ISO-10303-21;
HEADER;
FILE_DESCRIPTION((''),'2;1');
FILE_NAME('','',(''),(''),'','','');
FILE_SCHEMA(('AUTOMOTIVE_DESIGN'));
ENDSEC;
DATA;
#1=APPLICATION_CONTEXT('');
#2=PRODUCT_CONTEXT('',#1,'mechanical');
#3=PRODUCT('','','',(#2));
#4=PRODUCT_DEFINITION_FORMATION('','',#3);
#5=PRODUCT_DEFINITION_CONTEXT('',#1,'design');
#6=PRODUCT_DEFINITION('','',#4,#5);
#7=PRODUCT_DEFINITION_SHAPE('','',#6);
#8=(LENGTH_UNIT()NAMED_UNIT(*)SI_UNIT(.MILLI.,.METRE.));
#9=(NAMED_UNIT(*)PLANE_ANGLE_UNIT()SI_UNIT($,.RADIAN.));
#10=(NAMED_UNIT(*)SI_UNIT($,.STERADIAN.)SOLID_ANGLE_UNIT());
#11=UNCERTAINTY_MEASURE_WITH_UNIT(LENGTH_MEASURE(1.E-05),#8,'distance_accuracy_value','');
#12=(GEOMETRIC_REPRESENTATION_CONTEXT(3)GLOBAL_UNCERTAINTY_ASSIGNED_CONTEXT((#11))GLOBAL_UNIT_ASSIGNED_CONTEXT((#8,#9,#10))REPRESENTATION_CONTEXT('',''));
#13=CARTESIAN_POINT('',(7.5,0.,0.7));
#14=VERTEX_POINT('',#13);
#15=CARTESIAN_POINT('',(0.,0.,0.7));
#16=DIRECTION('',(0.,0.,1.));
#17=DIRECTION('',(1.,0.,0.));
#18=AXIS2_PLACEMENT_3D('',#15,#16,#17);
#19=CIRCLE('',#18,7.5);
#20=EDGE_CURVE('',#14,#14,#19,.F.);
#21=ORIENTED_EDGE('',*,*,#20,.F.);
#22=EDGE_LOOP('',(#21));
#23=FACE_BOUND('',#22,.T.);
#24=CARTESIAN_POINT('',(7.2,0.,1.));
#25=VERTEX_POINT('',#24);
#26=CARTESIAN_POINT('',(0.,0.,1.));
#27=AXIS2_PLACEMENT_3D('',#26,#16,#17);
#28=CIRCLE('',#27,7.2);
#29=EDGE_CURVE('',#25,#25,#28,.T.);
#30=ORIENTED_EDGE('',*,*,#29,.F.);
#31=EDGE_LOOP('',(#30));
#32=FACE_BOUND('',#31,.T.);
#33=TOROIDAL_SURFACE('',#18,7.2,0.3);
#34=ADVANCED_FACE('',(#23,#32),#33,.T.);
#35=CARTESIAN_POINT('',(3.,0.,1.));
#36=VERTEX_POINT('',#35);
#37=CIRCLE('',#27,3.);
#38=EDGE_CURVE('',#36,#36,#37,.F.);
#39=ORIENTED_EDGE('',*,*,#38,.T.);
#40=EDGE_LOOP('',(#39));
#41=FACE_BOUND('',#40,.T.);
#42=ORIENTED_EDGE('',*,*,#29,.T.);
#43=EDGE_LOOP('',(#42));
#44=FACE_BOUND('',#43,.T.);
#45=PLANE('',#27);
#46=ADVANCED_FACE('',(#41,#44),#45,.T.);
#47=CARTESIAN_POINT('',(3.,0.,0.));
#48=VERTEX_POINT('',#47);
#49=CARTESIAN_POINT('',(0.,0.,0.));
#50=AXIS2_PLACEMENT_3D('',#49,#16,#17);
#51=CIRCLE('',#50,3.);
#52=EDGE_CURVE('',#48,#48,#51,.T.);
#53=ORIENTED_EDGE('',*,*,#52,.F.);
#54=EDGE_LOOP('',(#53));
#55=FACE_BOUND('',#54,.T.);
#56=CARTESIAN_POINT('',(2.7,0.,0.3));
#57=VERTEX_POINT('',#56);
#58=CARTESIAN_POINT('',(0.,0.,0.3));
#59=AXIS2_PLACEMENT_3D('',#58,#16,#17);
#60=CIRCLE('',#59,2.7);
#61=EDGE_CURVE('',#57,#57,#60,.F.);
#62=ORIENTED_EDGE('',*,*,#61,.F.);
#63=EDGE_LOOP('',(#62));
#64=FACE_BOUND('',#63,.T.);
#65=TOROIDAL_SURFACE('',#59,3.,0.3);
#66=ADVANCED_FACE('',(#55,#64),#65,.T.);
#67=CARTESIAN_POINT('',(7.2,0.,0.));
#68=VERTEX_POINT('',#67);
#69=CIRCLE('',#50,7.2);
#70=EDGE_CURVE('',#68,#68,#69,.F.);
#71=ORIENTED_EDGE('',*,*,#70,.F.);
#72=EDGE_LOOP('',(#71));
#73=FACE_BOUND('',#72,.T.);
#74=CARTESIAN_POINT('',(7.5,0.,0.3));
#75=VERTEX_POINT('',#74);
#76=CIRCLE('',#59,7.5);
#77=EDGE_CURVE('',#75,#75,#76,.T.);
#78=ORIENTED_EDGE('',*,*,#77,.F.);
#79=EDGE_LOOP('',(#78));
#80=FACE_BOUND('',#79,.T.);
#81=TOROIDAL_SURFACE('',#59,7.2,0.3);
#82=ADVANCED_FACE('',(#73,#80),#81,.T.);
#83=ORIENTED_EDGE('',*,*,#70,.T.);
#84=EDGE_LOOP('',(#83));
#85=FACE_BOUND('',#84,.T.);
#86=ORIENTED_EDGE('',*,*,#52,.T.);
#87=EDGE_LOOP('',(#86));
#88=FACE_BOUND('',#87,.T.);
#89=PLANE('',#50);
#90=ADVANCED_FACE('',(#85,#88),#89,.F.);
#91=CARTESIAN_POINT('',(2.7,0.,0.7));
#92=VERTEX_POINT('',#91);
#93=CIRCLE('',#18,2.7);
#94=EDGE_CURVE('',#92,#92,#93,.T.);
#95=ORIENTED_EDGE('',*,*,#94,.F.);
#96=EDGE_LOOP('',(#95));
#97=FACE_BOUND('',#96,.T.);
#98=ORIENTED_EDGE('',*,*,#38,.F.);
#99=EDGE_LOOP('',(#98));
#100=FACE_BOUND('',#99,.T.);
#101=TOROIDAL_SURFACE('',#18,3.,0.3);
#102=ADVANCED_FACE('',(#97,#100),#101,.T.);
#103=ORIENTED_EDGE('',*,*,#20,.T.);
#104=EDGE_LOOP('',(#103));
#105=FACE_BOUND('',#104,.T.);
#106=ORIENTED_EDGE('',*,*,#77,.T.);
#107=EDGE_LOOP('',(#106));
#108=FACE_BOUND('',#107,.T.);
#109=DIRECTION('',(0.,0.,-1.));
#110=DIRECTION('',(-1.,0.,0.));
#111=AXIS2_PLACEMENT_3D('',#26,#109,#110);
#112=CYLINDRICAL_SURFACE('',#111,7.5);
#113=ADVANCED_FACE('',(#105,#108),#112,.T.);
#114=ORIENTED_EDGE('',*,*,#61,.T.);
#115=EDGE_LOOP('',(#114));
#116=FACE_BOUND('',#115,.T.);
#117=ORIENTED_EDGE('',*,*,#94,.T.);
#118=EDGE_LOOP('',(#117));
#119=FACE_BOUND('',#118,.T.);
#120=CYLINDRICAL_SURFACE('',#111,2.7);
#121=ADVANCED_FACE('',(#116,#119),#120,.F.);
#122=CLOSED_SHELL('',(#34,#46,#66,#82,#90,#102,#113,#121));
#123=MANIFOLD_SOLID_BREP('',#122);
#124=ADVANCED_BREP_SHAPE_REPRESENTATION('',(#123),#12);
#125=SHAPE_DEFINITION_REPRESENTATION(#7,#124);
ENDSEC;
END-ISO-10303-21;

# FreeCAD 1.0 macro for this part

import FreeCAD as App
import Part
import Sketcher

V = App.Vector
Q = App.Units.Quantity


def edges_at(feature, points):
    """Names of the edges that pass closest to the given points."""
    edges = feature.Shape.Edges
    near = lambda p: min(range(len(edges)), key=lambda i: edges[i].distToShape(Part.Vertex(*p))[0])
    return sorted({f"Edge{near(p) + 1}" for p in points})

doc = App.newDocument("Part")
body = doc.addObject("PartDesign::Body", "Body")

# Sketch on XY plane
sketch1 = doc.addObject("Sketcher::SketchObject", "Sketch")
body.addObject(sketch1)
sketch1.AttachmentSupport = (doc.XY_Plane, [""])
sketch1.MapMode = "FlatFace"
sketch1.addGeometry([
    Part.Circle(V(0, 0, 0), V(0, 0, 1), 7.5),
    Part.Circle(V(0, 0, 0), V(0, 0, 1), 2.7),
], False)
sketch1.addConstraint([
    Sketcher.Constraint("Coincident", 0, 3, -1, 1),
    Sketcher.Constraint("Coincident", 1, 3, -1, 1),
    Sketcher.Constraint("Diameter", 0, Q("15 mm")),
    Sketcher.Constraint("Diameter", 1, Q("5.4 mm")),
])
pad1 = doc.addObject("PartDesign::Pad", "Pad")
body.addObject(pad1)
pad1.Profile = sketch1
pad1.Length = 1
doc.recompute()

fillet = doc.addObject("PartDesign::Fillet", "Fillet")
body.addObject(fillet)
fillet.Base = (pad1, edges_at(pad1, [
    (-7.5, 0, 0),
    (-7.5, 0, 1),
    (-2.7, 0, 0),
    (-2.7, 0, 1),
]))
fillet.Radius = 0.3

doc.recompute()
